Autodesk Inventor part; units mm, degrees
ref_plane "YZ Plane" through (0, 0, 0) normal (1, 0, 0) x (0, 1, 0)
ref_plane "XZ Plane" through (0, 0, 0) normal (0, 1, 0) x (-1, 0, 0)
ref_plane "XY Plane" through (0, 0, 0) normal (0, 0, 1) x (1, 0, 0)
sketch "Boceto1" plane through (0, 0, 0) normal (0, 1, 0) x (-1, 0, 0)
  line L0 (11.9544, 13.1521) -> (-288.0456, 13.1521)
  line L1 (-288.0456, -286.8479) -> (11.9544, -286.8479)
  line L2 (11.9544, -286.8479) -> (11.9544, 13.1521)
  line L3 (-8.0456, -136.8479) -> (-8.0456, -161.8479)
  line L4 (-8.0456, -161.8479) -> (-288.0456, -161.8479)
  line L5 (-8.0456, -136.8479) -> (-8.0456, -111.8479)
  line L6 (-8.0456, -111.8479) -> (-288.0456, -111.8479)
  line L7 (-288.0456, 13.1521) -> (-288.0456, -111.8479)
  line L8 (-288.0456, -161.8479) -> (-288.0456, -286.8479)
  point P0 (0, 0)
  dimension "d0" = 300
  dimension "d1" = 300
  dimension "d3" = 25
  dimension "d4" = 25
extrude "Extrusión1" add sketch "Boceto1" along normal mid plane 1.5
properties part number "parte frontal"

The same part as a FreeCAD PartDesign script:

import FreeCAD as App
import Part
import Sketcher
Q = App.Units.Quantity

doc = App.newDocument("Part")
body = doc.addObject("PartDesign::Body", "Body")

# Sketch on XZ plane
sketch1 = doc.addObject("Sketcher::SketchObject", "Sketch")
body.addObject(sketch1)
sketch1.AttachmentSupport = (doc.XZ_Plane, [""])
sketch1.MapMode = "FlatFace"
sketch1.addGeometry([
    Part.LineSegment(App.Vector(-12, -287, 0), App.Vector(-12, 13, 0)),  # 0
    Part.LineSegment(App.Vector(-12, 13, 0), App.Vector(288, 13, 0)),  # 1
    Part.LineSegment(App.Vector(288, 13, 0), App.Vector(288, -112, 0)),  # 2
    Part.LineSegment(App.Vector(288, -112, 0), App.Vector(8, -112, 0)),  # 3
    Part.LineSegment(App.Vector(8, -112, 0), App.Vector(8, -162, 0)),  # 4
    Part.LineSegment(App.Vector(8, -162, 0), App.Vector(288, -162, 0)),  # 5
    Part.LineSegment(App.Vector(288, -162, 0), App.Vector(288, -287, 0)),  # 6
    Part.LineSegment(App.Vector(288, -287, 0), App.Vector(-12, -287, 0)),  # 7
], False)
sketch1.addConstraint([
    Sketcher.Constraint("Coincident", 0, 2, 1, 1),
    Sketcher.Constraint("Coincident", 1, 2, 2, 1),
    Sketcher.Constraint("Coincident", 2, 2, 3, 1),
    Sketcher.Constraint("Coincident", 3, 2, 4, 1),
    Sketcher.Constraint("Coincident", 4, 2, 5, 1),
    Sketcher.Constraint("Coincident", 5, 2, 6, 1),
    Sketcher.Constraint("Coincident", 6, 2, 7, 1),
    Sketcher.Constraint("Coincident", 7, 2, 0, 1),
    Sketcher.Constraint("Vertical", 0),
    Sketcher.Constraint("Horizontal", 1),
    Sketcher.Constraint("Vertical", 2),
    Sketcher.Constraint("Horizontal", 3),
    Sketcher.Constraint("Vertical", 4),
    Sketcher.Constraint("Horizontal", 5),
    Sketcher.Constraint("Vertical", 6),
    Sketcher.Constraint("Horizontal", 7),
    Sketcher.Constraint("Vertical", 2, 2, 5, 2),
    Sketcher.Constraint("Equal", 7, 0),
    Sketcher.Constraint("Equal", 2, 6),
    Sketcher.Constraint("DistanceX", 1, 1, 1, 2, Q("300 mm")),
    Sketcher.Constraint("DistanceX", 3, 2, 3, 1, Q("280 mm")),
    Sketcher.Constraint("DistanceY", 2, 2, 2, 1, Q("125 mm")),
    Sketcher.Constraint("DistanceY", -1, 1, 0, 2, Q("13.152 mm")),
    Sketcher.Constraint("DistanceX", 0, 2, -1, 1, Q("11.9544 mm")),
])
pad1 = doc.addObject("PartDesign::Pad", "Pad")
body.addObject(pad1)
pad1.Profile = sketch1
pad1.Length = 1.5
pad1.Midplane = True

doc.recompute()
